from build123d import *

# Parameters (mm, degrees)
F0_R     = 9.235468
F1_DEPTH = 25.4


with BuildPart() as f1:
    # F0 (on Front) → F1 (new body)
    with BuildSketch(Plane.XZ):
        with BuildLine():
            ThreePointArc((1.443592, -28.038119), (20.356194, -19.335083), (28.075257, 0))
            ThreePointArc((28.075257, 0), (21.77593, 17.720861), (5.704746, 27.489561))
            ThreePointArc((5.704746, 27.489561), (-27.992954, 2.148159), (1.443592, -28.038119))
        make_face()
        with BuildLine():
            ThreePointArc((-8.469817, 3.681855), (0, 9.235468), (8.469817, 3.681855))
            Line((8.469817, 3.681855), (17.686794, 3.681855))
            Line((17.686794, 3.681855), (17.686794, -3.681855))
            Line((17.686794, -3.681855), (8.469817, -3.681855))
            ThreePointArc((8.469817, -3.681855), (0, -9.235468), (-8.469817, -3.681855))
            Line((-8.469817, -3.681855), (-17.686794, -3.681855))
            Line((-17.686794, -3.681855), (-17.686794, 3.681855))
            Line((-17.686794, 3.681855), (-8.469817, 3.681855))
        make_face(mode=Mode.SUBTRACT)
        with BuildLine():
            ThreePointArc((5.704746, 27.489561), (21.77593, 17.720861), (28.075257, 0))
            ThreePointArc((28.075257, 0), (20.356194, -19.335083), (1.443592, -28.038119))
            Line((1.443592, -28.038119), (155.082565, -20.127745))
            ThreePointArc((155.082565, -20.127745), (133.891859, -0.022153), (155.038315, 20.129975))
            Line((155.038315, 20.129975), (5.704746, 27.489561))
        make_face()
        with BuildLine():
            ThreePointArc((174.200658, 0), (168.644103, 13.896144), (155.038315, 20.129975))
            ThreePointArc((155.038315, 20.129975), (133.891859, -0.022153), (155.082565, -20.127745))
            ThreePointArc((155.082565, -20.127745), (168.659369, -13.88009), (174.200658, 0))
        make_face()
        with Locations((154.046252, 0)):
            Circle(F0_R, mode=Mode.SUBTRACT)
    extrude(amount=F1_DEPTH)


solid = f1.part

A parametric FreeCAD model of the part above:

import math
import FreeCAD as App
import Part
import Sketcher
from FreeCAD import Vector

doc = App.newDocument("Part")
params = doc.addObject("Spreadsheet::Sheet", "Params")
for row, (alias, value) in enumerate([
    ("pad1_length", "1 in"),
], start=1):
    params.set(f"A{row}", alias)
    params.set(f"B{row}", "=" + value)
    params.setAlias(f"B{row}", alias)

body = doc.addObject("PartDesign::Body", "Body")

sketch1 = doc.addObject("Sketcher::SketchObject", "Sketch")
body.addObject(sketch1)
sketch1.AttachmentSupport = (doc.XZ_Plane, [""])
sketch1.MapMode = "FlatFace"
sketch1.addGeometry([
    Part.ArcOfCircle(Part.Circle(Vector(0, 0, 0), Vector(0, 0, 1), 28.075257), math.radians(78.276157), math.radians(272.947371)),
    Part.LineSegment(Vector(1.443592, -28.038119, 0), Vector(155.082565, -20.127745, 0)),
    Part.ArcOfCircle(Part.Circle(Vector(154.046253, -0.000001, 0), Vector(0, 0, 1), 20.154405), math.radians(-87.05263), math.radians(0.000002)),
    Part.ArcOfCircle(Part.Circle(Vector(154.046251, -0.000001, 0), Vector(0, 0, 1), 20.154407), math.radians(0.000002), math.radians(87.17858)),
    Part.LineSegment(Vector(155.038315, 20.129975, 0), Vector(5.704746, 27.489561, 0)),
    Part.LineSegment(Vector(-17.686794, 3.681855, 0), Vector(-8.469817, 3.681855, 0)),
    Part.ArcOfCircle(Part.Circle(Vector(0, 0.000001, 0), Vector(0, 0, 1), 9.235467), math.radians(23.494724), math.radians(156.505276)),
    Part.LineSegment(Vector(8.469817, 3.681855, 0), Vector(17.686794, 3.681855, 0)),
    Part.LineSegment(Vector(17.686794, 3.681855, 0), Vector(17.686794, -3.681855, 0)),
    Part.LineSegment(Vector(17.686794, -3.681855, 0), Vector(8.469817, -3.681855, 0)),
    Part.ArcOfCircle(Part.Circle(Vector(0, -0.000001, 0), Vector(0, 0, 1), 9.235467), math.radians(-156.505276), math.radians(-23.494724)),
    Part.LineSegment(Vector(-8.469817, -3.681855, 0), Vector(-17.686794, -3.681855, 0)),
    Part.LineSegment(Vector(-17.686794, -3.681855, 0), Vector(-17.686794, 3.681855, 0)),
    Part.Circle(Vector(154.046252, 0, 0), Vector(0, 0, 1), 9.235468),
], False)
sketch1.addConstraint([
    Sketcher.Constraint("Tangent", 0, 2, 1, 1),
    Sketcher.Constraint("Tangent", 1, 2, 2, 1),
    Sketcher.Constraint("Tangent", 2, 2, 3, 1),
    Sketcher.Constraint("Tangent", 3, 2, 4, 1),
    Sketcher.Constraint("Coincident", 4, 2, 0, 1),
    Sketcher.Constraint("Coincident", 5, 2, 6, 2),
    Sketcher.Constraint("Coincident", 6, 1, 7, 1),
    Sketcher.Constraint("Coincident", 7, 2, 8, 1),
    Sketcher.Constraint("Coincident", 8, 2, 9, 1),
    Sketcher.Constraint("Coincident", 9, 2, 10, 2),
    Sketcher.Constraint("Coincident", 10, 1, 11, 1),
    Sketcher.Constraint("Coincident", 11, 2, 12, 1),
    Sketcher.Constraint("Coincident", 12, 2, 5, 1),
    Sketcher.Constraint("Horizontal", 5),
    Sketcher.Constraint("Horizontal", 7),
    Sketcher.Constraint("Vertical", 8),
    Sketcher.Constraint("Horizontal", 9),
    Sketcher.Constraint("Horizontal", 11),
    Sketcher.Constraint("Vertical", 12),
    Sketcher.Constraint("Coincident", 0, 3, -1, 1),
    Sketcher.Constraint("Coincident", 6, 3, -1, 1),
    Sketcher.Constraint("Coincident", 10, 3, -1, 1),
    Sketcher.Constraint("Coincident", 13, 3, 2, 3),
    Sketcher.Constraint("Equal", 2, 3),
    Sketcher.Constraint("Equal", 6, 10),
    Sketcher.Constraint("Equal", 10, 13),
    Sketcher.Constraint("Symmetric", 7, 2, 11, 2, -1, 1),
    Sketcher.Constraint("PointOnObject", 2, 3, -1),
    Sketcher.Constraint("PointOnObject", 2, 2, -1),
    Sketcher.Constraint("Horizontal", 5, 2, 6, 1),
    Sketcher.Constraint("Horizontal", 9, 2, 10, 1),
    Sketcher.Constraint("Diameter", 13, 18.470936),
    Sketcher.Constraint("Radius", 0, 28.075257),
    Sketcher.Constraint("Radius", 2, 20.154405),
    Sketcher.Constraint("DistanceY", 8, 2, 8, 1, 7.36371),
    Sketcher.Constraint("Distance", 1, 153.842478),
    Sketcher.Constraint("Distance", 4, 149.51481),
    Sketcher.Constraint("DistanceX", 5, 1, 5, 2, 9.216977),
])
pad1 = doc.addObject("PartDesign::Pad", "Pad")
body.addObject(pad1)
pad1.Profile = sketch1
pad1.setExpression("Length", "Params.pad1_length")

doc.recompute()
